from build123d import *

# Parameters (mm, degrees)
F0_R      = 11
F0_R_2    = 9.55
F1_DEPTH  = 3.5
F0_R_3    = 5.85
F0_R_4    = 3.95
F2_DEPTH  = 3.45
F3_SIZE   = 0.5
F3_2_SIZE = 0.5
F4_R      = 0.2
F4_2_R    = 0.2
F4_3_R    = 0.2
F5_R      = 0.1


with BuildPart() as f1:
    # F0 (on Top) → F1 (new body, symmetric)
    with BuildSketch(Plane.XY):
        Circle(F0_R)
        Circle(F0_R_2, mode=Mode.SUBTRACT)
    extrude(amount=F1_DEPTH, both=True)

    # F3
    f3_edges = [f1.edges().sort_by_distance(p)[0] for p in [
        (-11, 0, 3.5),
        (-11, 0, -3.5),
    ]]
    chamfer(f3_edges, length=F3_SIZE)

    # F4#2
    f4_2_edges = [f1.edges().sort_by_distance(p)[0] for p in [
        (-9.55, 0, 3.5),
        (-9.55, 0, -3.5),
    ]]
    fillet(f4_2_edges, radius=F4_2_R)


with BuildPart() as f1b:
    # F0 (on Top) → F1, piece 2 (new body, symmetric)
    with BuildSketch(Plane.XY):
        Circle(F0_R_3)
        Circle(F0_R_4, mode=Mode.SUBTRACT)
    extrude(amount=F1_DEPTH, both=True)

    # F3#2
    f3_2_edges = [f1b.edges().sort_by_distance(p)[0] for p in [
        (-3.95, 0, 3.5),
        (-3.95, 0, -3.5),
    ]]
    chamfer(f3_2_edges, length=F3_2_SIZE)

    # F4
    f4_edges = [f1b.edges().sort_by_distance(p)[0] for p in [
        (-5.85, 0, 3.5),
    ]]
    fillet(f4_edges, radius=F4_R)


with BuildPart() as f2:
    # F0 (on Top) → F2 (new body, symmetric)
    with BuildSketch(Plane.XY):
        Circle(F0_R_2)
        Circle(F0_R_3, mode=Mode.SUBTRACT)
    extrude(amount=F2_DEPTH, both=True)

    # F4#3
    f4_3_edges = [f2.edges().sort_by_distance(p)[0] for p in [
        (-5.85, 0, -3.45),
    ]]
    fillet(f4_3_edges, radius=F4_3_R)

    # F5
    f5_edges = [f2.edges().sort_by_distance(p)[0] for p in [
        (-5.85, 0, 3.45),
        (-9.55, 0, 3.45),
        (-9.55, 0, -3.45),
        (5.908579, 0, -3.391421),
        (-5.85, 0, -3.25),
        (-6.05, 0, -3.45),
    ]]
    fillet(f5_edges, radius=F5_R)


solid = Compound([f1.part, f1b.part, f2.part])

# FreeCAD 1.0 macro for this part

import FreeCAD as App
import Part
import Sketcher

V = App.Vector
Q = App.Units.Quantity


def edges_at(feature, points):
    """Names of the edges that pass closest to the given points."""
    edges = feature.Shape.Edges
    near = lambda p: min(range(len(edges)), key=lambda i: edges[i].distToShape(Part.Vertex(*p))[0])
    return sorted({f"Edge{near(p) + 1}" for p in points})

doc = App.newDocument("Part")
params = doc.addObject("Spreadsheet::Sheet", "Params")
for row, (alias, value) in enumerate([
    ("sketch1_diameter", "22 mm"),
    ("sketch1_diameter2", "19.1 mm"),
    ("pad1_length", "7 mm"),
    ("chamfer_size", "0.5 mm"),
    ("fillet_radius", "0.2 mm"),
    ("sketch2_diameter", "11.7 mm"),
    ("sketch2_diameter2", "7.9 mm"),
    ("pad2_length", "7 mm"),
    ("chamfer2_size", "0.5 mm"),
    ("fillet2_radius", "0.2 mm"),
    ("sketch3_diameter", "19.1 mm"),
    ("sketch3_diameter2", "11.7 mm"),
    ("pad3_length", "6.9 mm"),
    ("fillet3_radius", "0.2 mm"),
    ("fillet4_radius", "0.1 mm"),
], start=1):
    params.set(f"A{row}", alias)
    params.set(f"B{row}", "=" + value)
    params.setAlias(f"B{row}", alias)

body = doc.addObject("PartDesign::Body", "Body")

# Sketch on XY plane
sketch1 = body.newObject("Sketcher::SketchObject", "Sketch")
sketch1.AttachmentSupport = (doc.getObject("XY_Plane"), [""])
sketch1.MapMode = "FlatFace"
sketch1.addGeometry([
    Part.Circle(V(0, 0, 0), V(0, 0, 1), 11),
    Part.Circle(V(0, 0, 0), V(0, 0, 1), 10),
], False)
sketch1.addConstraint([
    Sketcher.Constraint("Coincident", 0, 3, -1, 1),
    Sketcher.Constraint("Coincident", 1, 3, -1, 1),
    Sketcher.Constraint("Diameter", 0, Q("22 mm")),
    Sketcher.Constraint("Diameter", 1, Q("19.1 mm")),
])
sketch1.setExpression("Constraints[2]", "Params.sketch1_diameter")
sketch1.setExpression("Constraints[3]", "Params.sketch1_diameter2")
pad1 = body.newObject("PartDesign::Pad", "Pad")
pad1.Profile = sketch1
pad1.setExpression("Length", "Params.pad1_length")
pad1.Midplane = True
doc.recompute()

chamfer = body.newObject("PartDesign::Chamfer", "Chamfer")
chamfer.Base = (pad1, edges_at(pad1, [(-11, 0, 3.5), (-11, 0, -3.5)]))
chamfer.setExpression("Size", "Params.chamfer_size")
doc.recompute()

fillet = body.newObject("PartDesign::Fillet", "Fillet")
fillet.Base = (chamfer, edges_at(chamfer, [(-9.55, 0, 3.5), (-9.55, 0, -3.5)]))
fillet.setExpression("Radius", "Params.fillet_radius")
body2 = doc.addObject("PartDesign::Body", "Body001")

# Sketch on XY plane
sketch2 = body2.newObject("Sketcher::SketchObject", "Sketch001")
sketch2.AttachmentSupport = (doc.getObject("XY_Plane001"), [""])
sketch2.MapMode = "FlatFace"
sketch2.addGeometry([
    Part.Circle(V(0, 0, 0), V(0, 0, 1), 5.8),
    Part.Circle(V(0, 0, 0), V(0, 0, 1), 4),
], False)
sketch2.addConstraint([
    Sketcher.Constraint("Coincident", 0, 3, -1, 1),
    Sketcher.Constraint("Coincident", 1, 3, -1, 1),
    Sketcher.Constraint("Diameter", 0, Q("11.7 mm")),
    Sketcher.Constraint("Diameter", 1, Q("7.9 mm")),
])
sketch2.setExpression("Constraints[2]", "Params.sketch2_diameter")
sketch2.setExpression("Constraints[3]", "Params.sketch2_diameter2")
pad2 = body2.newObject("PartDesign::Pad", "Pad001")
pad2.Profile = sketch2
pad2.setExpression("Length", "Params.pad2_length")
pad2.Midplane = True
doc.recompute()

chamfer2 = body2.newObject("PartDesign::Chamfer", "Chamfer001")
chamfer2.Base = (pad2, edges_at(pad2, [(-3.95, 0, 3.5), (-3.95, 0, -3.5)]))
chamfer2.setExpression("Size", "Params.chamfer2_size")
doc.recompute()

fillet2 = body2.newObject("PartDesign::Fillet", "Fillet001")
fillet2.Base = (chamfer2, edges_at(chamfer2, [(-5.85, 0, 3.5)]))
fillet2.setExpression("Radius", "Params.fillet2_radius")
body3 = doc.addObject("PartDesign::Body", "Body002")

# Sketch on XY plane
sketch3 = body3.newObject("Sketcher::SketchObject", "Sketch002")
sketch3.AttachmentSupport = (doc.getObject("XY_Plane002"), [""])
sketch3.MapMode = "FlatFace"
sketch3.addGeometry([
    Part.Circle(V(0, 0, 0), V(0, 0, 1), 10),
    Part.Circle(V(0, 0, 0), V(0, 0, 1), 6),
], False)
sketch3.addConstraint([
    Sketcher.Constraint("Coincident", 0, 3, -1, 1),
    Sketcher.Constraint("Coincident", 1, 3, -1, 1),
    Sketcher.Constraint("Diameter", 0, Q("19.1 mm")),
    Sketcher.Constraint("Diameter", 1, Q("11.7 mm")),
])
sketch3.setExpression("Constraints[2]", "Params.sketch3_diameter")
sketch3.setExpression("Constraints[3]", "Params.sketch3_diameter2")
pad3 = body3.newObject("PartDesign::Pad", "Pad002")
pad3.Profile = sketch3
pad3.setExpression("Length", "Params.pad3_length")
pad3.Midplane = True
doc.recompute()

fillet3 = body3.newObject("PartDesign::Fillet", "Fillet002")
fillet3.Base = (pad3, edges_at(pad3, [(-5.85, 0, -3.45)]))
fillet3.setExpression("Radius", "Params.fillet3_radius")
doc.recompute()

fillet4 = body3.newObject("PartDesign::Fillet", "Fillet003")
fillet4.Base = (fillet3, ["Edge1"])
fillet4.UseAllEdges = True
fillet4.setExpression("Radius", "Params.fillet4_radius")

doc.recompute()
